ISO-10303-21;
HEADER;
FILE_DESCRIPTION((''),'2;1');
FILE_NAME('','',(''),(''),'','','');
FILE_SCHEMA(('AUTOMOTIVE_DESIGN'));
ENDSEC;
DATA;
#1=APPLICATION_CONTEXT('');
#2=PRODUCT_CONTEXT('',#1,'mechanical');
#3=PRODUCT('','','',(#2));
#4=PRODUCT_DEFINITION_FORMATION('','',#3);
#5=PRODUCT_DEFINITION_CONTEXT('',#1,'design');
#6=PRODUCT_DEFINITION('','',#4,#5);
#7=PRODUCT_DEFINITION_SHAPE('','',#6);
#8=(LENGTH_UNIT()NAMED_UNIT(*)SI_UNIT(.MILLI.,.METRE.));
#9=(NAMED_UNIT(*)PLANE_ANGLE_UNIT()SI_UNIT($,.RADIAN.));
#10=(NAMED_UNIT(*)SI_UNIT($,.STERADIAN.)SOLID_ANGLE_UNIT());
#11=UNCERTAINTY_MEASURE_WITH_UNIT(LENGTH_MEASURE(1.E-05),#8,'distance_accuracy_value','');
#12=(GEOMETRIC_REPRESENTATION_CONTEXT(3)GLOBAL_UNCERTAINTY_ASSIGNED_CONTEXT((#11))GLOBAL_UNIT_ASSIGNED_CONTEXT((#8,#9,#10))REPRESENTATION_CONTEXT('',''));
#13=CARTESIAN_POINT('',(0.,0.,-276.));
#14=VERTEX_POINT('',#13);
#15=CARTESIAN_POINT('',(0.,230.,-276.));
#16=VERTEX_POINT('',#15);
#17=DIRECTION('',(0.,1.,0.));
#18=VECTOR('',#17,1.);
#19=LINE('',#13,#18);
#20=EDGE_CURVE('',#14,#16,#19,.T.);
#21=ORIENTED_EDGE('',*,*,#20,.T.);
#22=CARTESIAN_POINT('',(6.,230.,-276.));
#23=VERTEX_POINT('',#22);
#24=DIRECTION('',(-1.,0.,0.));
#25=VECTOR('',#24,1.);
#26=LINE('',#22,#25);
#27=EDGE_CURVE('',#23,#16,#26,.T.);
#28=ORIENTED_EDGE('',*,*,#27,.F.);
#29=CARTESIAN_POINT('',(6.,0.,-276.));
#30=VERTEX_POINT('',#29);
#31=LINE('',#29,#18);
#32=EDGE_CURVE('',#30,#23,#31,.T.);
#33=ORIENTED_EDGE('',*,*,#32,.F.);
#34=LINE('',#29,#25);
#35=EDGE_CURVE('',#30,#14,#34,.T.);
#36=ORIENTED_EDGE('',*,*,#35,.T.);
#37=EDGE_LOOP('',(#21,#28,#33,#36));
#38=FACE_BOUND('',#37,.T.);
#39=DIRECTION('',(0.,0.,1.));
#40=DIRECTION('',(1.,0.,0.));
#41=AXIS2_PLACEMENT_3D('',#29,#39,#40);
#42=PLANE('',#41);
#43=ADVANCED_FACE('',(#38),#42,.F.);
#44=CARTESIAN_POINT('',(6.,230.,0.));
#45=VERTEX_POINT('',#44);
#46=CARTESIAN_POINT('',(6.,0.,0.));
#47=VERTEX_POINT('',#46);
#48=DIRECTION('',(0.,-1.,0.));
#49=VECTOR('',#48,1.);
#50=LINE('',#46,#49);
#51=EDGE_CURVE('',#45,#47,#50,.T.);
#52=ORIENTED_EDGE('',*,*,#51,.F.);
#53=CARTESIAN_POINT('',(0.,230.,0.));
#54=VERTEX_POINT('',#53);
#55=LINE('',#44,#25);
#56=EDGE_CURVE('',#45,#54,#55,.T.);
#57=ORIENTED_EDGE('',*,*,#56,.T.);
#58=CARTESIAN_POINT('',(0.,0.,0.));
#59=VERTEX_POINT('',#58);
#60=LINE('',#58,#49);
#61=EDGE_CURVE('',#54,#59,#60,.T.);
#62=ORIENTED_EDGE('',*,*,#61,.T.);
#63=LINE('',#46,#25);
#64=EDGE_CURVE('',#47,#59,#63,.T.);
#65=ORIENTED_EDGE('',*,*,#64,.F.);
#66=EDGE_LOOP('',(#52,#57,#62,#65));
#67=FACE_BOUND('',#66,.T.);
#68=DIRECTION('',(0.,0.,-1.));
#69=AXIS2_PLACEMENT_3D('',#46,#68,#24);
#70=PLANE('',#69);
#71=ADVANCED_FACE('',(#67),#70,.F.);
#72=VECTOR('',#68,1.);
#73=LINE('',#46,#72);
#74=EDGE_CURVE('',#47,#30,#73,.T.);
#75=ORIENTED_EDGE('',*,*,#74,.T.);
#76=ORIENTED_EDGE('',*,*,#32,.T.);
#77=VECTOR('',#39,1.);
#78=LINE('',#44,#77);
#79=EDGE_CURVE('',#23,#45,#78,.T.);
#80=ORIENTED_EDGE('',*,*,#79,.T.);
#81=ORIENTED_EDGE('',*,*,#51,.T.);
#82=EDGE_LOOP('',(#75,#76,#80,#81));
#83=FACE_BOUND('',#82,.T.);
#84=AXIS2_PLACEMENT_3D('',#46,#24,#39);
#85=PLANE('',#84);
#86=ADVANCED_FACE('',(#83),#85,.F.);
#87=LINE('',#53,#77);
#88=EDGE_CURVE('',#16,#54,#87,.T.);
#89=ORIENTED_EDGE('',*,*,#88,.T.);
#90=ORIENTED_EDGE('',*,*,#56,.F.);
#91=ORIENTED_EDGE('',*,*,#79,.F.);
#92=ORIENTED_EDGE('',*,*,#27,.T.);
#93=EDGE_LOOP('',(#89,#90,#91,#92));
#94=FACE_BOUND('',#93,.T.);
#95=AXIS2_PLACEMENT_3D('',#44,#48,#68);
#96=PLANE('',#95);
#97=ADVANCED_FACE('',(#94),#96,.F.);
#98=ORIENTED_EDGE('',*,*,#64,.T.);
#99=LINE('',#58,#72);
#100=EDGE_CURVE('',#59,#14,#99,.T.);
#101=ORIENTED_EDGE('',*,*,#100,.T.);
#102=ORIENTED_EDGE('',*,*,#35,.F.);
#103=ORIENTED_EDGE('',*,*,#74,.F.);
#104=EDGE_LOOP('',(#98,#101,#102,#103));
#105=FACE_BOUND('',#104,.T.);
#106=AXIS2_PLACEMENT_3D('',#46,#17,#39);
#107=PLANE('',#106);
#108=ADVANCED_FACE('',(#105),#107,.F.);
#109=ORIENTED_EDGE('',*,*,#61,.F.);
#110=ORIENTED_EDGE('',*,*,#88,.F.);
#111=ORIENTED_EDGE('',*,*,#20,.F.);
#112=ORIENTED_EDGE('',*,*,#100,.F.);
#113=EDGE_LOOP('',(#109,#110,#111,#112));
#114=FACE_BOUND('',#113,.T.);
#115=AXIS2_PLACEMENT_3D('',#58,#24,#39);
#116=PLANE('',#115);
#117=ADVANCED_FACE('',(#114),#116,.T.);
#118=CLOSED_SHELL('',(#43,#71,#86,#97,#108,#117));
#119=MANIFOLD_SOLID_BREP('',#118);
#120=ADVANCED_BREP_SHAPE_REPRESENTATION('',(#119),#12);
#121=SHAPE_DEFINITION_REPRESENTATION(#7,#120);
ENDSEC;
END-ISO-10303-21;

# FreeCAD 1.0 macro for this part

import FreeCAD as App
import Part
import Sketcher
from FreeCAD import Vector
Q = App.Units.Quantity

doc = App.newDocument("Part")
body = doc.addObject("PartDesign::Body", "Body")

sketch1 = doc.addObject("Sketcher::SketchObject", "Sketch")
body.addObject(sketch1)
sketch1.AttachmentSupport = (doc.YZ_Plane, [""])
sketch1.MapMode = "FlatFace"
sketch1.addGeometry([
    Part.LineSegment(Vector(230, 0, 0), Vector(0, 0, 0)),
    Part.LineSegment(Vector(0, 0, 0), Vector(0, -276, 0)),
    Part.LineSegment(Vector(0, -276, 0), Vector(230, -276, 0)),
    Part.LineSegment(Vector(230, -276, 0), Vector(230, 0, 0)),
], False)
sketch1.addConstraint([
    Sketcher.Constraint("Coincident", 0, 2, 1, 1),
    Sketcher.Constraint("Coincident", 1, 2, 2, 1),
    Sketcher.Constraint("Coincident", 2, 2, 3, 1),
    Sketcher.Constraint("Coincident", 3, 2, 0, 1),
    Sketcher.Constraint("Horizontal", 0),
    Sketcher.Constraint("Vertical", 1),
    Sketcher.Constraint("Horizontal", 2),
    Sketcher.Constraint("Vertical", 3),
    Sketcher.Constraint("Coincident", 0, 2, -1, 1),
    Sketcher.Constraint("DistanceX", 0, 2, 0, 1, Q("230 mm")),
    Sketcher.Constraint("DistanceY", 1, 2, 1, 1, Q("276 mm")),
])
pad1 = doc.addObject("PartDesign::Pad", "Pad")
body.addObject(pad1)
pad1.Profile = sketch1
pad1.Length = 6

doc.recompute()
